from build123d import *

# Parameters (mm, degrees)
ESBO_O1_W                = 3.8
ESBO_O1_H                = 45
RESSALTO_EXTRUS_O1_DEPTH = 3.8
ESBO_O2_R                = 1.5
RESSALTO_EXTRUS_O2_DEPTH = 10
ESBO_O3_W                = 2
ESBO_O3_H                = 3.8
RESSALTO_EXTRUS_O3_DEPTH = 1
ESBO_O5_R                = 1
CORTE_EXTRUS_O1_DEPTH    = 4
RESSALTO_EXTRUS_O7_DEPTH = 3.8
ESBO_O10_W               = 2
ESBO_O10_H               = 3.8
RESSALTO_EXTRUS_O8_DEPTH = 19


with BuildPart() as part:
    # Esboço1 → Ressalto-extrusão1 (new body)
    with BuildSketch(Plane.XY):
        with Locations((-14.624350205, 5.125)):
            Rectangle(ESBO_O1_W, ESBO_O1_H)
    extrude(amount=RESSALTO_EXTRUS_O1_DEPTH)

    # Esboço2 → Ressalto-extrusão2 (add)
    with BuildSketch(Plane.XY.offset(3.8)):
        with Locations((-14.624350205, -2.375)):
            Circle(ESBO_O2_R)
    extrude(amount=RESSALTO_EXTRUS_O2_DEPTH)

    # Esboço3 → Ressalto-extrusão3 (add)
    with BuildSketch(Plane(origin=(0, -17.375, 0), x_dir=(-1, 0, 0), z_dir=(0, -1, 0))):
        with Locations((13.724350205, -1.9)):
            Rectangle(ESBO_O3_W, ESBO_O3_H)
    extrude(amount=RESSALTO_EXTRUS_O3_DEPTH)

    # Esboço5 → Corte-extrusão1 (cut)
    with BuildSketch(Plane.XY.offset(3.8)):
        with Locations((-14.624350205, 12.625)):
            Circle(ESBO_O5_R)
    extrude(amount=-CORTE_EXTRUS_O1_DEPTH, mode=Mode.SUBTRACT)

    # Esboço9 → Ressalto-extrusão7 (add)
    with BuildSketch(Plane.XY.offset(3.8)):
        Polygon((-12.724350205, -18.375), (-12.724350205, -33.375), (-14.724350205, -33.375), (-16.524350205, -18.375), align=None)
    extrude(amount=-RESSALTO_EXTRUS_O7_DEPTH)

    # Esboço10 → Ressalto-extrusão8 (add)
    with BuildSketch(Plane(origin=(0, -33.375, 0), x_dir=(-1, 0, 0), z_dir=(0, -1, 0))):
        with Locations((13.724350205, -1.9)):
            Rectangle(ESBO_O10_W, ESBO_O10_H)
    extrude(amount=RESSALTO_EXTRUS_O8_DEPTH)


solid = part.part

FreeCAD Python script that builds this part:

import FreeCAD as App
import Part
import Sketcher

V = App.Vector
Q = App.Units.Quantity


def add_polygon(sketch, points):
    """Adds a closed chain of lines whose ends are joined by coincident constraints."""
    first, n = sketch.GeometryCount, len(points)
    for a, b in zip(points, points[1:] + points[:1]):
        sketch.addGeometry(Part.LineSegment(App.Vector(*a, 0), App.Vector(*b, 0)), False)
    for i in range(n):
        sketch.addConstraint(Sketcher.Constraint("Coincident", first + i, 2, first + (i + 1) % n, 1))

doc = App.newDocument("Part")
body = doc.addObject("PartDesign::Body", "Body")

# Sketch on XY plane
sketch1 = body.newObject("Sketcher::SketchObject", "Sketch")
sketch1.AttachmentSupport = (doc.getObject("XY_Plane"), [""])
sketch1.MapMode = "FlatFace"
add_polygon(sketch1, [(-16.5, 27.6), (-16.5, -17.4), (-12.7, -17.4), (-12.7, 27.6)])  # lines 0-3
sketch1.addConstraint([
    Sketcher.Constraint("Vertical", 0),
    Sketcher.Constraint("Horizontal", 1),
    Sketcher.Constraint("Vertical", 2),
    Sketcher.Constraint("Horizontal", 3),
    Sketcher.Constraint("DistanceY", 0, 2, 0, 1, Q("45 mm")),
    Sketcher.Constraint("DistanceX", 1, 1, 1, 2, Q("3.8 mm")),
    Sketcher.Constraint("DistanceY", 0, 2, -1, 1, Q("17.375 mm")),
    Sketcher.Constraint("DistanceX", 0, 2, -1, 1, Q("16.52435 mm")),
])
pad1 = body.newObject("PartDesign::Pad", "Pad")
pad1.Profile = sketch1
pad1.Length = 3.8

# Sketch on XY plane
sketch2 = body.newObject("Sketcher::SketchObject", "Sketch001")
sketch2.AttachmentSupport = (doc.getObject("XY_Plane"), [""])
sketch2.MapMode = "FlatFace"
sketch2.AttachmentOffset = App.Placement(V(0, 0, 3.8), App.Rotation())
sketch2.addGeometry(Part.Circle(V(-14.6, -2.4, 0), V(0, 0, 1), 1.5), False)
sketch2.addConstraint([
    Sketcher.Constraint("Diameter", 0, Q("3 mm")),
    Sketcher.Constraint("DistanceY", 0, 3, -1, 1, Q("2.375 mm")),
    Sketcher.Constraint("DistanceX", 0, 3, -1, 1, Q("14.62435 mm")),
])
pad2 = body.newObject("PartDesign::Pad", "Pad001")
pad2.Profile = sketch2
pad2.Length = 10

# Sketch on XZ plane
sketch3 = body.newObject("Sketcher::SketchObject", "Sketch002")
sketch3.AttachmentSupport = (doc.getObject("XZ_Plane"), [""])
sketch3.MapMode = "FlatFace"
sketch3.AttachmentOffset = App.Placement(V(0, 0, 17.375), App.Rotation())
add_polygon(sketch3, [(-12.7, 0), (-12.7, 3.8), (-14.7, 3.8), (-14.7, 0)])  # lines 0-3
sketch3.addConstraint([
    Sketcher.Constraint("Vertical", 0),
    Sketcher.Constraint("Horizontal", 1),
    Sketcher.Constraint("Vertical", 2),
    Sketcher.Constraint("Horizontal", 3),
    Sketcher.Constraint("PointOnObject", 2, 2, -1),
    Sketcher.Constraint("DistanceX", 1, 2, 1, 1, Q("2 mm")),
    Sketcher.Constraint("DistanceY", 0, 1, 0, 2, Q("3.8 mm")),
    Sketcher.Constraint("DistanceX", 0, 2, -1, 1, Q("12.72435 mm")),
])
pad3 = body.newObject("PartDesign::Pad", "Pad002")
pad3.Profile = sketch3
pad3.Length = 1

# Sketch on XY plane
sketch4 = body.newObject("Sketcher::SketchObject", "Sketch003")
sketch4.AttachmentSupport = (doc.getObject("XY_Plane"), [""])
sketch4.MapMode = "FlatFace"
sketch4.AttachmentOffset = App.Placement(V(0, 0, 3.8), App.Rotation())
sketch4.addGeometry(Part.Circle(V(-14.6, 12.6, 0), V(0, 0, 1), 1), False)
sketch4.addConstraint([
    Sketcher.Constraint("Diameter", 0, Q("2 mm")),
    Sketcher.Constraint("DistanceY", -1, 1, 0, 3, Q("12.625 mm")),
    Sketcher.Constraint("DistanceX", 0, 3, -1, 1, Q("14.62435 mm")),
])
pocket1 = body.newObject("PartDesign::Pocket", "Pocket")
pocket1.Profile = sketch4
pocket1.Length = 4

# Sketch on XY plane
sketch5 = body.newObject("Sketcher::SketchObject", "Sketch004")
sketch5.AttachmentSupport = (doc.getObject("XY_Plane"), [""])
sketch5.MapMode = "FlatFace"
sketch5.AttachmentOffset = App.Placement(V(0, 0, 3.8), App.Rotation())
add_polygon(sketch5, [(-12.7, -33.4), (-12.7, -18.4), (-16.5, -18.4), (-14.7, -33.4)])  # lines 0-3
sketch5.addConstraint([
    Sketcher.Constraint("Vertical", 0),
    Sketcher.Constraint("Horizontal", 1),
    Sketcher.Constraint("Horizontal", 3),
    Sketcher.Constraint("DistanceX", 3, 1, 3, 2, Q("2 mm")),
    Sketcher.Constraint("DistanceY", 0, 1, 0, 2, Q("15 mm")),
    Sketcher.Constraint("DistanceX", 1, 2, 1, 1, Q("3.8 mm")),
    Sketcher.Constraint("DistanceY", 0, 2, -1, 1, Q("18.375 mm")),
    Sketcher.Constraint("DistanceX", 0, 2, -1, 1, Q("12.72435 mm")),
])
pad4 = body.newObject("PartDesign::Pad", "Pad003")
pad4.Profile = sketch5
pad4.Length = 3.8
pad4.Reversed = True

# Sketch on XZ plane
sketch6 = body.newObject("Sketcher::SketchObject", "Sketch005")
sketch6.AttachmentSupport = (doc.getObject("XZ_Plane"), [""])
sketch6.MapMode = "FlatFace"
sketch6.AttachmentOffset = App.Placement(V(0, 0, 33.375), App.Rotation())
add_polygon(sketch6, [(-12.7, 0), (-12.7, 3.8), (-14.7, 3.8), (-14.7, 0)])  # lines 0-3
sketch6.addConstraint([
    Sketcher.Constraint("Vertical", 0),
    Sketcher.Constraint("Horizontal", 1),
    Sketcher.Constraint("Vertical", 2),
    Sketcher.Constraint("Horizontal", 3),
    Sketcher.Constraint("PointOnObject", 2, 2, -1),
    Sketcher.Constraint("DistanceX", 1, 2, 1, 1, Q("2 mm")),
    Sketcher.Constraint("DistanceY", 0, 1, 0, 2, Q("3.8 mm")),
    Sketcher.Constraint("DistanceX", 0, 2, -1, 1, Q("12.72435 mm")),
])
pad5 = body.newObject("PartDesign::Pad", "Pad004")
pad5.Profile = sketch6
pad5.Length = 19

doc.recompute()
